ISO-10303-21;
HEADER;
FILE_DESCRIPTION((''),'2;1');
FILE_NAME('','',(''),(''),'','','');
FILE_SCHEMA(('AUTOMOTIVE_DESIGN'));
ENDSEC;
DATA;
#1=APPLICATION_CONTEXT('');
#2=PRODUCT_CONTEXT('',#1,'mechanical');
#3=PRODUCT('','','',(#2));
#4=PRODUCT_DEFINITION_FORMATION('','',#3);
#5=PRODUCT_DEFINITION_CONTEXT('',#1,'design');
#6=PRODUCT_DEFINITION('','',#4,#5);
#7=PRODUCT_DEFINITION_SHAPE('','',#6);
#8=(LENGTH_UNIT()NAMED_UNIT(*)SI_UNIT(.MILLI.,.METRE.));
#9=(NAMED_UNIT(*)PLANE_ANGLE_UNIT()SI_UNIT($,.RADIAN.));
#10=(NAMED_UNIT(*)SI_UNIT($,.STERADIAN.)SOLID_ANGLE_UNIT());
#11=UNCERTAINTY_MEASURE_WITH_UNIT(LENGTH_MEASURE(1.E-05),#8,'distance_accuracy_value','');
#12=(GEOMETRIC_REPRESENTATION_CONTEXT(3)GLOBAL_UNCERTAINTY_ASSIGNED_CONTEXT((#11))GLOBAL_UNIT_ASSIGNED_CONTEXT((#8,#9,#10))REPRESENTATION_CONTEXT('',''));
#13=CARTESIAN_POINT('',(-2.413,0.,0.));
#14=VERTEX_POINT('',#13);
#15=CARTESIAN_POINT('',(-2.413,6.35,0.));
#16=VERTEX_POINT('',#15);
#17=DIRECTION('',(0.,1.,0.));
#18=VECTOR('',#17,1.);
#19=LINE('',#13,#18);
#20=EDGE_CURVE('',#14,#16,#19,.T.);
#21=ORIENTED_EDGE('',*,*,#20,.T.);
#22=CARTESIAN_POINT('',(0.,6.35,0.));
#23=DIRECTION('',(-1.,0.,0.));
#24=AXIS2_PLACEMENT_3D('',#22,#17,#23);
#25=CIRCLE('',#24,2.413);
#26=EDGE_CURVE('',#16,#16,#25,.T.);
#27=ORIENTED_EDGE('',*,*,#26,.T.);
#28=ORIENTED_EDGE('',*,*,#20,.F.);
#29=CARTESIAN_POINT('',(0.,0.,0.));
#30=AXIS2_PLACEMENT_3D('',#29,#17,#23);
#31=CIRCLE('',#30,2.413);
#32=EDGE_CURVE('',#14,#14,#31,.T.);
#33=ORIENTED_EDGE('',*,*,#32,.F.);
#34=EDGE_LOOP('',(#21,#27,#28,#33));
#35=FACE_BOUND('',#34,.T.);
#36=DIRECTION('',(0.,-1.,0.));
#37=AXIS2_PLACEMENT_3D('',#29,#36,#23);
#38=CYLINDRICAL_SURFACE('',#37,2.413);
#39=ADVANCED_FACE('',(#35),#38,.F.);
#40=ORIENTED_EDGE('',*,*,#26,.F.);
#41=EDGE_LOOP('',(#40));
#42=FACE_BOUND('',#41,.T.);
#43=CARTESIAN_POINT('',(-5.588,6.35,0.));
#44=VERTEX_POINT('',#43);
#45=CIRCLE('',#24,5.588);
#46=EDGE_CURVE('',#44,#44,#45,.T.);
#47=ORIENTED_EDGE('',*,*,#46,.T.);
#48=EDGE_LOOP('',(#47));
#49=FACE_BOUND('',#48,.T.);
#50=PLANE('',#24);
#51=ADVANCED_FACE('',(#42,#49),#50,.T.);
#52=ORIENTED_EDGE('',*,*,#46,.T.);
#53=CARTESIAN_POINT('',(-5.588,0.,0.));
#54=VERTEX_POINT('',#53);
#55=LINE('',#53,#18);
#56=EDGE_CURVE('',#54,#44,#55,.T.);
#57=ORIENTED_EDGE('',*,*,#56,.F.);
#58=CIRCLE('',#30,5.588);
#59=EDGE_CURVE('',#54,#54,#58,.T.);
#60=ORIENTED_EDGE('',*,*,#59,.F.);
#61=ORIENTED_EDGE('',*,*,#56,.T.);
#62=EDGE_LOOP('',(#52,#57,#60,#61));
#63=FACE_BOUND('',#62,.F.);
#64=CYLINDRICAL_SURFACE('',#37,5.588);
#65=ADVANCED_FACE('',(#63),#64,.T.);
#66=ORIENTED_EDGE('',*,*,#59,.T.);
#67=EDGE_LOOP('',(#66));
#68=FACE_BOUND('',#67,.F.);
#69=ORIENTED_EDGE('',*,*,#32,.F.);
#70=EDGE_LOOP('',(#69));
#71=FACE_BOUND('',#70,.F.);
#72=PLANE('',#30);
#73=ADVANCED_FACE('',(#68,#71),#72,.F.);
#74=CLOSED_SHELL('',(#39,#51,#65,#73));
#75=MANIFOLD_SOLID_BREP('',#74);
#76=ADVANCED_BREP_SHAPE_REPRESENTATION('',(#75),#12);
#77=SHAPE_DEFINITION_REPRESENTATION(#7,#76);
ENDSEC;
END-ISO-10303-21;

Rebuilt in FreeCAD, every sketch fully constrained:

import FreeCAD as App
import Part
import Sketcher

V = App.Vector
Q = App.Units.Quantity

doc = App.newDocument("Part")
body = doc.addObject("PartDesign::Body", "Body")

sketch1 = body.newObject("Sketcher::SketchObject", "Sketch")
sketch1.AttachmentSupport = (doc.getObject("XZ_Plane"), [""])
sketch1.MapMode = "FlatFace"
sketch1.addGeometry([
    Part.Circle(V(0, 0, 0), V(0, 0, 1), 5.6),
    Part.Circle(V(0, 0, 0), V(0, 0, 1), 2.4),
], False)
sketch1.addConstraint([
    Sketcher.Constraint("Coincident", 0, 3, -1, 1),
    Sketcher.Constraint("Coincident", 1, 3, -1, 1),
    Sketcher.Constraint("Diameter", 1, Q("0.19 in")),
    Sketcher.Constraint("Diameter", 0, Q("0.44 in")),
])
pad1 = body.newObject("PartDesign::Pad", "Pad")
pad1.Profile = sketch1
pad1.Length = Q("0.25 in")
pad1.Reversed = True

doc.recompute()
